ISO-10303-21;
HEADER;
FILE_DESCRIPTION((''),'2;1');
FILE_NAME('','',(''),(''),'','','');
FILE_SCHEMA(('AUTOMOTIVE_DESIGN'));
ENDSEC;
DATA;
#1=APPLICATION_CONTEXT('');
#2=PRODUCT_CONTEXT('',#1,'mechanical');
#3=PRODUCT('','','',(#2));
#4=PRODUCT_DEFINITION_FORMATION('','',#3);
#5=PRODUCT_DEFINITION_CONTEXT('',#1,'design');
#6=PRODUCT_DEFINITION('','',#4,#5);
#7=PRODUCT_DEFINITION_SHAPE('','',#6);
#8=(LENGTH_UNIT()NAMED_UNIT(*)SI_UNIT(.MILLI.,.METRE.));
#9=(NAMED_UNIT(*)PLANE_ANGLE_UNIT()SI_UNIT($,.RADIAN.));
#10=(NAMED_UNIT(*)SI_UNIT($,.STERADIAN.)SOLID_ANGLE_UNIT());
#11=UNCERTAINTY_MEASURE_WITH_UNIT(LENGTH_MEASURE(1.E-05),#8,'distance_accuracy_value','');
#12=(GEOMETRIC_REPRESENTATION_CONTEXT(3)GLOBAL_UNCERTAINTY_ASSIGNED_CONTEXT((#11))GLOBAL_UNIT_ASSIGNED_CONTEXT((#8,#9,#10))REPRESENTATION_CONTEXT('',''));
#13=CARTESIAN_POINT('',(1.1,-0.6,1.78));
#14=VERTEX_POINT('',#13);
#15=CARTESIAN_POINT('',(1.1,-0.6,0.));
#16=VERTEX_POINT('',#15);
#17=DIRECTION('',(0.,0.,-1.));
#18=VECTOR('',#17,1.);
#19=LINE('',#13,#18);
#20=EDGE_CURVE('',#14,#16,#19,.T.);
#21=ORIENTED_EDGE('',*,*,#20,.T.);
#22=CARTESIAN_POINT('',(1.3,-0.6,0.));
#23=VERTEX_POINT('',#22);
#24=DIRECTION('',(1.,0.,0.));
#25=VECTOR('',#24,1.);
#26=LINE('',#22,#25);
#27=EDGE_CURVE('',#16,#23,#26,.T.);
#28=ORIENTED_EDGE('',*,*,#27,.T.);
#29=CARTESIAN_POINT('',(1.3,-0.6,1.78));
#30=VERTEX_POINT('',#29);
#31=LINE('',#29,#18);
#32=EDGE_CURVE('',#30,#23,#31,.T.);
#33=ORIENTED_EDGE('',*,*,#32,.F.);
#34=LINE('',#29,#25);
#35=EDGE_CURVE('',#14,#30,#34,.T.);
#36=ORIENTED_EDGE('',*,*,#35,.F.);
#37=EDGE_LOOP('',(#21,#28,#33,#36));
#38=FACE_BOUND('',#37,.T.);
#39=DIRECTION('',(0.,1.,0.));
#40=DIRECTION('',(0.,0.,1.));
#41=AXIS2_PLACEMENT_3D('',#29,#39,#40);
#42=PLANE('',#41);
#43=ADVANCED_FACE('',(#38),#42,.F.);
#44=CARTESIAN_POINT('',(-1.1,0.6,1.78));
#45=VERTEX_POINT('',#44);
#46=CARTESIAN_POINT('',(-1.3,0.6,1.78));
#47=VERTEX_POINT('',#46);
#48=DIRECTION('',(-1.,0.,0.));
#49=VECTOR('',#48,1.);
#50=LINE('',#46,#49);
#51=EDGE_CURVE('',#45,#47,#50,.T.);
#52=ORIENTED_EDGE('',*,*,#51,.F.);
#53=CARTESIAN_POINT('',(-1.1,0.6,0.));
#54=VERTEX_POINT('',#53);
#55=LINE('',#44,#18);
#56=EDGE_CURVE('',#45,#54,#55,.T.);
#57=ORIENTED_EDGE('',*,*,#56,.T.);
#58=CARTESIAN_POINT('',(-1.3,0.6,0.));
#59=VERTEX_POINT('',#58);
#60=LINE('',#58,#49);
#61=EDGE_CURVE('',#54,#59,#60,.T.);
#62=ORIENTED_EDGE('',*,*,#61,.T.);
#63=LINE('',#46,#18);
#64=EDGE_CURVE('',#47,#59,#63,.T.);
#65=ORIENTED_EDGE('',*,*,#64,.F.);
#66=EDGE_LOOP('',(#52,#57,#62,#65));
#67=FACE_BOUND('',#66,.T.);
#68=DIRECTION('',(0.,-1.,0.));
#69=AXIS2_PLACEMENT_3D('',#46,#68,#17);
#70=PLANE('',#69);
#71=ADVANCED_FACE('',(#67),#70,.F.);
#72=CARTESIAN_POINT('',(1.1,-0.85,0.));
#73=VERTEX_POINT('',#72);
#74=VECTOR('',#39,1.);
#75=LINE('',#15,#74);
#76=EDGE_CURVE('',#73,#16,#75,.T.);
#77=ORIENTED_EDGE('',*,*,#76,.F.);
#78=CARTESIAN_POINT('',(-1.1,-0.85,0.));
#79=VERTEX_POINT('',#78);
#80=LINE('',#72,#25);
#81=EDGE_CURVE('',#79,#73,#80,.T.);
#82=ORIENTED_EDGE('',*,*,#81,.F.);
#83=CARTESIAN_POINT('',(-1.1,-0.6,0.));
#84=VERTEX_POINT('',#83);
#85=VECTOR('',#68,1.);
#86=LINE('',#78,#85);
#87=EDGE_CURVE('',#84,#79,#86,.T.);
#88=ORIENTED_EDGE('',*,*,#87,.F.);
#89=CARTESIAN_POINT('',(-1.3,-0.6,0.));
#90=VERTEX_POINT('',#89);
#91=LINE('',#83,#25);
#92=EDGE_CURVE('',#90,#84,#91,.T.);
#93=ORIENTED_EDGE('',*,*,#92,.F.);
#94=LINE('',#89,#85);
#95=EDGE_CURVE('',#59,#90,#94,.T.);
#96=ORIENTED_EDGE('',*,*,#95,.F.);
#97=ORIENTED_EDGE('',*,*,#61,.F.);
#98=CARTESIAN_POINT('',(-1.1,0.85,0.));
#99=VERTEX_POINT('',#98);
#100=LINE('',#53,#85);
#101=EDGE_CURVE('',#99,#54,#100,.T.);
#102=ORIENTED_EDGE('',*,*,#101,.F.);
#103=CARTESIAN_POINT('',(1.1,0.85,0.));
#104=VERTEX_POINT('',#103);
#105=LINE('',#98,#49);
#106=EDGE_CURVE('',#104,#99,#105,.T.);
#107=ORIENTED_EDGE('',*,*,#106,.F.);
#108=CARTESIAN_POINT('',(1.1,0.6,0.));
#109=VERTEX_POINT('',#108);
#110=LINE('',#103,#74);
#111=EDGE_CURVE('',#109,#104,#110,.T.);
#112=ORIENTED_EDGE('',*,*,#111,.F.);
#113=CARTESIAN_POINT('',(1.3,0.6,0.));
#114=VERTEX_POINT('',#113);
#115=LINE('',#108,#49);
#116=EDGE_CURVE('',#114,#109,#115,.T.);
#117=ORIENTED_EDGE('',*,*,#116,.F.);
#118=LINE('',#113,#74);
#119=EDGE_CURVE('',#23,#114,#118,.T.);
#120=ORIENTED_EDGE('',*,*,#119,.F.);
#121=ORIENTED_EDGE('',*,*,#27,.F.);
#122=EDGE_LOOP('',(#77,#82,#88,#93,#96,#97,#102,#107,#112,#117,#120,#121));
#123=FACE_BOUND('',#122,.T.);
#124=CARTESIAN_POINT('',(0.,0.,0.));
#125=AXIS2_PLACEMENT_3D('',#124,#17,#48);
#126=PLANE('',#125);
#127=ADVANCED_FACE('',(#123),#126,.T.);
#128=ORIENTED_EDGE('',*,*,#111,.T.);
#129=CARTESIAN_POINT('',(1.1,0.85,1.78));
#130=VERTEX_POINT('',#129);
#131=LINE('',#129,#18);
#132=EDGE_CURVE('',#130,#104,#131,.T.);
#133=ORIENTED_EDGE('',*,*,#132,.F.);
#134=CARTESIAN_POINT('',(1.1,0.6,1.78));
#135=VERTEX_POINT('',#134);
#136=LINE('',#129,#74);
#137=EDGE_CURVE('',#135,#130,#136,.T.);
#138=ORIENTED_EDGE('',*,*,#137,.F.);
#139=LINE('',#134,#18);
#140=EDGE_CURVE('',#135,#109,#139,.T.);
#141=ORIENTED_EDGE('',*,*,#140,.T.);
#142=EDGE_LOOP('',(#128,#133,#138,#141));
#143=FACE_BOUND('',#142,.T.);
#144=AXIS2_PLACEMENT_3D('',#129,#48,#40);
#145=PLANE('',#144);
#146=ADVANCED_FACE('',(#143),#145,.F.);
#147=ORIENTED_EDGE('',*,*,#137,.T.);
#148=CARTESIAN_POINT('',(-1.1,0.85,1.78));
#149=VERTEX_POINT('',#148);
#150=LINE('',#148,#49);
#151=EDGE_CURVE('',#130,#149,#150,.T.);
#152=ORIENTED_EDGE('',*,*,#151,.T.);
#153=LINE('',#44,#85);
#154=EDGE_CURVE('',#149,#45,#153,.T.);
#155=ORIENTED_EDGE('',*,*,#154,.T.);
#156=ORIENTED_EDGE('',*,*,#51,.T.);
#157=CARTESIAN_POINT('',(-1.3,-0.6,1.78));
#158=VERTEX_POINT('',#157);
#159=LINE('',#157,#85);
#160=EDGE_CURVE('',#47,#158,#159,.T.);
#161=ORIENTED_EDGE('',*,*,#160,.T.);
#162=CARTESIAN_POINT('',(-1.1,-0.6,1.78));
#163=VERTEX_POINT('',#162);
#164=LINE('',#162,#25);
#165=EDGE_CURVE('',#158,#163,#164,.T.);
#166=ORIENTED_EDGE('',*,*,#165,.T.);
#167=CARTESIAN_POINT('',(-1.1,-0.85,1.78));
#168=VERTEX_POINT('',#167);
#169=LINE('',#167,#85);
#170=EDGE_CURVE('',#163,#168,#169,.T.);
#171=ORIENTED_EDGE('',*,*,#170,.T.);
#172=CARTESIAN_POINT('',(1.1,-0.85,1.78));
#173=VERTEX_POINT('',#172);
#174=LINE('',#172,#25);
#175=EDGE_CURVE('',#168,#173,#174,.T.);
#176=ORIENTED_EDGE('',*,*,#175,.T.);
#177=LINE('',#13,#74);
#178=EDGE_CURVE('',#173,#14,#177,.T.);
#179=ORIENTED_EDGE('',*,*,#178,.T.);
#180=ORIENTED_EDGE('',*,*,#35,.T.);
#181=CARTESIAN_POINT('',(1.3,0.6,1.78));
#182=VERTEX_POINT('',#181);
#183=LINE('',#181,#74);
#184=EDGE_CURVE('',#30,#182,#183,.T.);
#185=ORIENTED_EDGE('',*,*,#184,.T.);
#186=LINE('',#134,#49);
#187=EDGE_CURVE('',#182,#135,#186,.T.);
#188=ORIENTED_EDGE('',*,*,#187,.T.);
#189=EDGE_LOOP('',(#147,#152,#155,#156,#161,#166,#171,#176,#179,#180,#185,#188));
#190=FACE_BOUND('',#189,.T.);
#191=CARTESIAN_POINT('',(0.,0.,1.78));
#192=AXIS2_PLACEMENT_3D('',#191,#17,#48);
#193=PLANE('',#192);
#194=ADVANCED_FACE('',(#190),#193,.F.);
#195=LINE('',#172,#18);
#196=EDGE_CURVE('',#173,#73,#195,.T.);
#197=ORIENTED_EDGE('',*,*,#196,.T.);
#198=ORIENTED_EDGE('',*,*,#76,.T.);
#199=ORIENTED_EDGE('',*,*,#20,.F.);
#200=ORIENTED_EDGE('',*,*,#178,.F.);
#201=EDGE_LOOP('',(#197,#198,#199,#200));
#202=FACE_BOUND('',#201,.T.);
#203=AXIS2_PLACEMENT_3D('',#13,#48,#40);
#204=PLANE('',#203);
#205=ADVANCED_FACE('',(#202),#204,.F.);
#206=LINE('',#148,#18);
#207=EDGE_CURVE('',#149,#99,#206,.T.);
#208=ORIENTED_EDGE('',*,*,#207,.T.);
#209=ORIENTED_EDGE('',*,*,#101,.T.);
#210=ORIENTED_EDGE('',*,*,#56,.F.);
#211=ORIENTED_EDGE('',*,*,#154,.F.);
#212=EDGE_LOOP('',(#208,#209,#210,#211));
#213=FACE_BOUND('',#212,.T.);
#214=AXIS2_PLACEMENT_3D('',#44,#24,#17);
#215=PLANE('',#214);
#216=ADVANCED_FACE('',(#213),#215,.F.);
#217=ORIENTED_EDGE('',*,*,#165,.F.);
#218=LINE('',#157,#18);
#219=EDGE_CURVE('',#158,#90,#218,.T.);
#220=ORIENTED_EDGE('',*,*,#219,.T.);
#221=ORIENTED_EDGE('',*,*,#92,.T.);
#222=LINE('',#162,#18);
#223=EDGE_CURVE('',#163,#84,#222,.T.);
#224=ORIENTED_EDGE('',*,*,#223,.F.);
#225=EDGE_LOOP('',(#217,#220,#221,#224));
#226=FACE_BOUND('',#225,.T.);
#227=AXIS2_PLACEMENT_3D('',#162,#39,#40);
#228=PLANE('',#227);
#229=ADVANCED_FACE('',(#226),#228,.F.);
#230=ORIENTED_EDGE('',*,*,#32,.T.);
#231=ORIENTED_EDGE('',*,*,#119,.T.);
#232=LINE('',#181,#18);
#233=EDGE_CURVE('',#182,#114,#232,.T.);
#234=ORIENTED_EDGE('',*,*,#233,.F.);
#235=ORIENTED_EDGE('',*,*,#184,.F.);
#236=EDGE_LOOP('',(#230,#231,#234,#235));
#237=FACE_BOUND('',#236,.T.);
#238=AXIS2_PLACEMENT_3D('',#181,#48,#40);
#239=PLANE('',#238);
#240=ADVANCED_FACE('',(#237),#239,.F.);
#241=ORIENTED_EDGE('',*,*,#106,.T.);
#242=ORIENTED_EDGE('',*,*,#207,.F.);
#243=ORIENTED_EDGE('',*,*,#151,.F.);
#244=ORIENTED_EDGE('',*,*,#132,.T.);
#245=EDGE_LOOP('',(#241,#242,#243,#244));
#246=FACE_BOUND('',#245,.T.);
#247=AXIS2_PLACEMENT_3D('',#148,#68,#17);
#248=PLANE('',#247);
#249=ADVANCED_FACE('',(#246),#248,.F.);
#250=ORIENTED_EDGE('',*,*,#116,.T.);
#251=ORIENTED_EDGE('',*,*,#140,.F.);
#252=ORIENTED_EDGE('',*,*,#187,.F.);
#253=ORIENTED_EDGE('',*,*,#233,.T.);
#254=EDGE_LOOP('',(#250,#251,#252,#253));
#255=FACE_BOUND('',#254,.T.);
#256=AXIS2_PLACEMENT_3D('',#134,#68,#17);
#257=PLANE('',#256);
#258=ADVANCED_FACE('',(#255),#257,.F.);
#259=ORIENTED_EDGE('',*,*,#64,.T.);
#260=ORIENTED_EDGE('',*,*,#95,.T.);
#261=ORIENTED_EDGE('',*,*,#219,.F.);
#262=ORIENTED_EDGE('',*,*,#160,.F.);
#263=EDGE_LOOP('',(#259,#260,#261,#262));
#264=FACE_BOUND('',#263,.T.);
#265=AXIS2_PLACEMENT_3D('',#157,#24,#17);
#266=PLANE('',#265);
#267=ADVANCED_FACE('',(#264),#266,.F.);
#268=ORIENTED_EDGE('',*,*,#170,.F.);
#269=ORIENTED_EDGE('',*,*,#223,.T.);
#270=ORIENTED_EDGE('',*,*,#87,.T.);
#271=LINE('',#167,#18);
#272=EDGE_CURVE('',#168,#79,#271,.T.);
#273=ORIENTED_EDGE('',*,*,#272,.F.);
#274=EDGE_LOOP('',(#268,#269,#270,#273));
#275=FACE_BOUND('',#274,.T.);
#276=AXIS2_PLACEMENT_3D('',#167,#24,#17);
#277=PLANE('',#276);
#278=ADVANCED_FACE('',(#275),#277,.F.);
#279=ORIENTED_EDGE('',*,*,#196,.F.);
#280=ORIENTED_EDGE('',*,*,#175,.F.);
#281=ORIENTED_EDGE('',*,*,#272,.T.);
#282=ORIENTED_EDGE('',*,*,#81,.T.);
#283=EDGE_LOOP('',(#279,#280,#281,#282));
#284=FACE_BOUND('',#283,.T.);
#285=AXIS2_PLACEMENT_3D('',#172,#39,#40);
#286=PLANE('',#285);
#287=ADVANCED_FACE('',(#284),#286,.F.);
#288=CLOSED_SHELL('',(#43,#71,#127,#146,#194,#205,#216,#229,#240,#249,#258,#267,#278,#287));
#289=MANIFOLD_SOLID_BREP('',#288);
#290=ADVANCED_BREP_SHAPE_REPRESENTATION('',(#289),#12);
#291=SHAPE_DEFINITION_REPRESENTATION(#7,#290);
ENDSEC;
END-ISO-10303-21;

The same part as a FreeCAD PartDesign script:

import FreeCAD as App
import Part
import Sketcher

V = App.Vector

doc = App.newDocument("Part")
body = doc.addObject("PartDesign::Body", "Body")

sketch1 = doc.addObject("Sketcher::SketchObject", "Sketch")
body.addObject(sketch1)
sketch1.AttachmentSupport = (doc.XY_Plane, [""])
sketch1.MapMode = "FlatFace"
sketch1.addGeometry(Part.LineSegment(V(-1.1, -0.6, 0), V(-1.1, -0.85, 0)), False)
sketch1.addGeometry(Part.LineSegment(V(-1.1, -0.85, 0), V(1.1, -0.85, 0)), False)
sketch1.addGeometry(Part.LineSegment(V(1.1, -0.85, 0), V(1.1, -0.6, 0)), False)
sketch1.addGeometry(Part.LineSegment(V(1.1, -0.6, 0), V(1.3, -0.6, 0)), False)
sketch1.addGeometry(Part.LineSegment(V(1.3, -0.6, 0), V(1.3, 0.6, 0)), False)
sketch1.addGeometry(Part.LineSegment(V(1.3, 0.6, 0), V(1.1, 0.6, 0)), False)
sketch1.addGeometry(Part.LineSegment(V(1.1, 0.6, 0), V(1.1, 0.85, 0)), False)
sketch1.addGeometry(Part.LineSegment(V(1.1, 0.85, 0), V(-1.1, 0.85, 0)), False)
sketch1.addGeometry(Part.LineSegment(V(-1.1, 0.85, 0), V(-1.1, 0.6, 0)), False)
sketch1.addGeometry(Part.LineSegment(V(-1.1, 0.6, 0), V(-1.3, 0.6, 0)), False)
sketch1.addGeometry(Part.LineSegment(V(-1.3, 0.6, 0), V(-1.3, -0.6, 0)), False)
sketch1.addGeometry(Part.LineSegment(V(-1.3, -0.6, 0), V(-1.1, -0.6, 0)), False)
sketch1.addConstraint(Sketcher.Constraint("Coincident", 0, 2, 1, 1))
sketch1.addConstraint(Sketcher.Constraint("Coincident", 1, 2, 2, 1))
sketch1.addConstraint(Sketcher.Constraint("Coincident", 2, 2, 3, 1))
sketch1.addConstraint(Sketcher.Constraint("Coincident", 3, 2, 4, 1))
sketch1.addConstraint(Sketcher.Constraint("Coincident", 4, 2, 5, 1))
sketch1.addConstraint(Sketcher.Constraint("Coincident", 5, 2, 6, 1))
sketch1.addConstraint(Sketcher.Constraint("Coincident", 6, 2, 7, 1))
sketch1.addConstraint(Sketcher.Constraint("Coincident", 7, 2, 8, 1))
sketch1.addConstraint(Sketcher.Constraint("Coincident", 8, 2, 9, 1))
sketch1.addConstraint(Sketcher.Constraint("Coincident", 9, 2, 10, 1))
sketch1.addConstraint(Sketcher.Constraint("Coincident", 10, 2, 11, 1))
sketch1.addConstraint(Sketcher.Constraint("Coincident", 11, 2, 0, 1))
sketch1.addConstraint(Sketcher.Constraint("Vertical", 0))
sketch1.addConstraint(Sketcher.Constraint("Horizontal", 1))
sketch1.addConstraint(Sketcher.Constraint("Vertical", 2))
sketch1.addConstraint(Sketcher.Constraint("Horizontal", 3))
sketch1.addConstraint(Sketcher.Constraint("Vertical", 4))
sketch1.addConstraint(Sketcher.Constraint("Horizontal", 5))
sketch1.addConstraint(Sketcher.Constraint("Vertical", 6))
sketch1.addConstraint(Sketcher.Constraint("Horizontal", 7))
sketch1.addConstraint(Sketcher.Constraint("Vertical", 8))
sketch1.addConstraint(Sketcher.Constraint("Horizontal", 9))
sketch1.addConstraint(Sketcher.Constraint("Vertical", 10))
sketch1.addConstraint(Sketcher.Constraint("Horizontal", 11))
sketch1.addConstraint(Sketcher.Constraint("Symmetric", 0, 2, 6, 2, -1, 1))
sketch1.addConstraint(Sketcher.Constraint("Symmetric", 2, 2, 8, 2, -1, 1))
sketch1.addConstraint(Sketcher.Constraint("Symmetric", 4, 2, 10, 2, -1, 1))
sketch1.addConstraint(Sketcher.Constraint("Symmetric", 5, 2, 8, 2, -2))
sketch1.addConstraint(Sketcher.Constraint("DistanceX", 1, 1, 1, 2, 2.2))
sketch1.addConstraint(Sketcher.Constraint("DistanceX", 3, 1, 3, 2, 0.2))
sketch1.addConstraint(Sketcher.Constraint("DistanceY", 4, 1, 4, 2, 1.2))
sketch1.addConstraint(Sketcher.Constraint("DistanceY", 0, 2, 0, 1, 0.25))
pad1 = doc.addObject("PartDesign::Pad", "Pad")
body.addObject(pad1)
pad1.Profile = sketch1
pad1.Length = 1.78

doc.recompute()
